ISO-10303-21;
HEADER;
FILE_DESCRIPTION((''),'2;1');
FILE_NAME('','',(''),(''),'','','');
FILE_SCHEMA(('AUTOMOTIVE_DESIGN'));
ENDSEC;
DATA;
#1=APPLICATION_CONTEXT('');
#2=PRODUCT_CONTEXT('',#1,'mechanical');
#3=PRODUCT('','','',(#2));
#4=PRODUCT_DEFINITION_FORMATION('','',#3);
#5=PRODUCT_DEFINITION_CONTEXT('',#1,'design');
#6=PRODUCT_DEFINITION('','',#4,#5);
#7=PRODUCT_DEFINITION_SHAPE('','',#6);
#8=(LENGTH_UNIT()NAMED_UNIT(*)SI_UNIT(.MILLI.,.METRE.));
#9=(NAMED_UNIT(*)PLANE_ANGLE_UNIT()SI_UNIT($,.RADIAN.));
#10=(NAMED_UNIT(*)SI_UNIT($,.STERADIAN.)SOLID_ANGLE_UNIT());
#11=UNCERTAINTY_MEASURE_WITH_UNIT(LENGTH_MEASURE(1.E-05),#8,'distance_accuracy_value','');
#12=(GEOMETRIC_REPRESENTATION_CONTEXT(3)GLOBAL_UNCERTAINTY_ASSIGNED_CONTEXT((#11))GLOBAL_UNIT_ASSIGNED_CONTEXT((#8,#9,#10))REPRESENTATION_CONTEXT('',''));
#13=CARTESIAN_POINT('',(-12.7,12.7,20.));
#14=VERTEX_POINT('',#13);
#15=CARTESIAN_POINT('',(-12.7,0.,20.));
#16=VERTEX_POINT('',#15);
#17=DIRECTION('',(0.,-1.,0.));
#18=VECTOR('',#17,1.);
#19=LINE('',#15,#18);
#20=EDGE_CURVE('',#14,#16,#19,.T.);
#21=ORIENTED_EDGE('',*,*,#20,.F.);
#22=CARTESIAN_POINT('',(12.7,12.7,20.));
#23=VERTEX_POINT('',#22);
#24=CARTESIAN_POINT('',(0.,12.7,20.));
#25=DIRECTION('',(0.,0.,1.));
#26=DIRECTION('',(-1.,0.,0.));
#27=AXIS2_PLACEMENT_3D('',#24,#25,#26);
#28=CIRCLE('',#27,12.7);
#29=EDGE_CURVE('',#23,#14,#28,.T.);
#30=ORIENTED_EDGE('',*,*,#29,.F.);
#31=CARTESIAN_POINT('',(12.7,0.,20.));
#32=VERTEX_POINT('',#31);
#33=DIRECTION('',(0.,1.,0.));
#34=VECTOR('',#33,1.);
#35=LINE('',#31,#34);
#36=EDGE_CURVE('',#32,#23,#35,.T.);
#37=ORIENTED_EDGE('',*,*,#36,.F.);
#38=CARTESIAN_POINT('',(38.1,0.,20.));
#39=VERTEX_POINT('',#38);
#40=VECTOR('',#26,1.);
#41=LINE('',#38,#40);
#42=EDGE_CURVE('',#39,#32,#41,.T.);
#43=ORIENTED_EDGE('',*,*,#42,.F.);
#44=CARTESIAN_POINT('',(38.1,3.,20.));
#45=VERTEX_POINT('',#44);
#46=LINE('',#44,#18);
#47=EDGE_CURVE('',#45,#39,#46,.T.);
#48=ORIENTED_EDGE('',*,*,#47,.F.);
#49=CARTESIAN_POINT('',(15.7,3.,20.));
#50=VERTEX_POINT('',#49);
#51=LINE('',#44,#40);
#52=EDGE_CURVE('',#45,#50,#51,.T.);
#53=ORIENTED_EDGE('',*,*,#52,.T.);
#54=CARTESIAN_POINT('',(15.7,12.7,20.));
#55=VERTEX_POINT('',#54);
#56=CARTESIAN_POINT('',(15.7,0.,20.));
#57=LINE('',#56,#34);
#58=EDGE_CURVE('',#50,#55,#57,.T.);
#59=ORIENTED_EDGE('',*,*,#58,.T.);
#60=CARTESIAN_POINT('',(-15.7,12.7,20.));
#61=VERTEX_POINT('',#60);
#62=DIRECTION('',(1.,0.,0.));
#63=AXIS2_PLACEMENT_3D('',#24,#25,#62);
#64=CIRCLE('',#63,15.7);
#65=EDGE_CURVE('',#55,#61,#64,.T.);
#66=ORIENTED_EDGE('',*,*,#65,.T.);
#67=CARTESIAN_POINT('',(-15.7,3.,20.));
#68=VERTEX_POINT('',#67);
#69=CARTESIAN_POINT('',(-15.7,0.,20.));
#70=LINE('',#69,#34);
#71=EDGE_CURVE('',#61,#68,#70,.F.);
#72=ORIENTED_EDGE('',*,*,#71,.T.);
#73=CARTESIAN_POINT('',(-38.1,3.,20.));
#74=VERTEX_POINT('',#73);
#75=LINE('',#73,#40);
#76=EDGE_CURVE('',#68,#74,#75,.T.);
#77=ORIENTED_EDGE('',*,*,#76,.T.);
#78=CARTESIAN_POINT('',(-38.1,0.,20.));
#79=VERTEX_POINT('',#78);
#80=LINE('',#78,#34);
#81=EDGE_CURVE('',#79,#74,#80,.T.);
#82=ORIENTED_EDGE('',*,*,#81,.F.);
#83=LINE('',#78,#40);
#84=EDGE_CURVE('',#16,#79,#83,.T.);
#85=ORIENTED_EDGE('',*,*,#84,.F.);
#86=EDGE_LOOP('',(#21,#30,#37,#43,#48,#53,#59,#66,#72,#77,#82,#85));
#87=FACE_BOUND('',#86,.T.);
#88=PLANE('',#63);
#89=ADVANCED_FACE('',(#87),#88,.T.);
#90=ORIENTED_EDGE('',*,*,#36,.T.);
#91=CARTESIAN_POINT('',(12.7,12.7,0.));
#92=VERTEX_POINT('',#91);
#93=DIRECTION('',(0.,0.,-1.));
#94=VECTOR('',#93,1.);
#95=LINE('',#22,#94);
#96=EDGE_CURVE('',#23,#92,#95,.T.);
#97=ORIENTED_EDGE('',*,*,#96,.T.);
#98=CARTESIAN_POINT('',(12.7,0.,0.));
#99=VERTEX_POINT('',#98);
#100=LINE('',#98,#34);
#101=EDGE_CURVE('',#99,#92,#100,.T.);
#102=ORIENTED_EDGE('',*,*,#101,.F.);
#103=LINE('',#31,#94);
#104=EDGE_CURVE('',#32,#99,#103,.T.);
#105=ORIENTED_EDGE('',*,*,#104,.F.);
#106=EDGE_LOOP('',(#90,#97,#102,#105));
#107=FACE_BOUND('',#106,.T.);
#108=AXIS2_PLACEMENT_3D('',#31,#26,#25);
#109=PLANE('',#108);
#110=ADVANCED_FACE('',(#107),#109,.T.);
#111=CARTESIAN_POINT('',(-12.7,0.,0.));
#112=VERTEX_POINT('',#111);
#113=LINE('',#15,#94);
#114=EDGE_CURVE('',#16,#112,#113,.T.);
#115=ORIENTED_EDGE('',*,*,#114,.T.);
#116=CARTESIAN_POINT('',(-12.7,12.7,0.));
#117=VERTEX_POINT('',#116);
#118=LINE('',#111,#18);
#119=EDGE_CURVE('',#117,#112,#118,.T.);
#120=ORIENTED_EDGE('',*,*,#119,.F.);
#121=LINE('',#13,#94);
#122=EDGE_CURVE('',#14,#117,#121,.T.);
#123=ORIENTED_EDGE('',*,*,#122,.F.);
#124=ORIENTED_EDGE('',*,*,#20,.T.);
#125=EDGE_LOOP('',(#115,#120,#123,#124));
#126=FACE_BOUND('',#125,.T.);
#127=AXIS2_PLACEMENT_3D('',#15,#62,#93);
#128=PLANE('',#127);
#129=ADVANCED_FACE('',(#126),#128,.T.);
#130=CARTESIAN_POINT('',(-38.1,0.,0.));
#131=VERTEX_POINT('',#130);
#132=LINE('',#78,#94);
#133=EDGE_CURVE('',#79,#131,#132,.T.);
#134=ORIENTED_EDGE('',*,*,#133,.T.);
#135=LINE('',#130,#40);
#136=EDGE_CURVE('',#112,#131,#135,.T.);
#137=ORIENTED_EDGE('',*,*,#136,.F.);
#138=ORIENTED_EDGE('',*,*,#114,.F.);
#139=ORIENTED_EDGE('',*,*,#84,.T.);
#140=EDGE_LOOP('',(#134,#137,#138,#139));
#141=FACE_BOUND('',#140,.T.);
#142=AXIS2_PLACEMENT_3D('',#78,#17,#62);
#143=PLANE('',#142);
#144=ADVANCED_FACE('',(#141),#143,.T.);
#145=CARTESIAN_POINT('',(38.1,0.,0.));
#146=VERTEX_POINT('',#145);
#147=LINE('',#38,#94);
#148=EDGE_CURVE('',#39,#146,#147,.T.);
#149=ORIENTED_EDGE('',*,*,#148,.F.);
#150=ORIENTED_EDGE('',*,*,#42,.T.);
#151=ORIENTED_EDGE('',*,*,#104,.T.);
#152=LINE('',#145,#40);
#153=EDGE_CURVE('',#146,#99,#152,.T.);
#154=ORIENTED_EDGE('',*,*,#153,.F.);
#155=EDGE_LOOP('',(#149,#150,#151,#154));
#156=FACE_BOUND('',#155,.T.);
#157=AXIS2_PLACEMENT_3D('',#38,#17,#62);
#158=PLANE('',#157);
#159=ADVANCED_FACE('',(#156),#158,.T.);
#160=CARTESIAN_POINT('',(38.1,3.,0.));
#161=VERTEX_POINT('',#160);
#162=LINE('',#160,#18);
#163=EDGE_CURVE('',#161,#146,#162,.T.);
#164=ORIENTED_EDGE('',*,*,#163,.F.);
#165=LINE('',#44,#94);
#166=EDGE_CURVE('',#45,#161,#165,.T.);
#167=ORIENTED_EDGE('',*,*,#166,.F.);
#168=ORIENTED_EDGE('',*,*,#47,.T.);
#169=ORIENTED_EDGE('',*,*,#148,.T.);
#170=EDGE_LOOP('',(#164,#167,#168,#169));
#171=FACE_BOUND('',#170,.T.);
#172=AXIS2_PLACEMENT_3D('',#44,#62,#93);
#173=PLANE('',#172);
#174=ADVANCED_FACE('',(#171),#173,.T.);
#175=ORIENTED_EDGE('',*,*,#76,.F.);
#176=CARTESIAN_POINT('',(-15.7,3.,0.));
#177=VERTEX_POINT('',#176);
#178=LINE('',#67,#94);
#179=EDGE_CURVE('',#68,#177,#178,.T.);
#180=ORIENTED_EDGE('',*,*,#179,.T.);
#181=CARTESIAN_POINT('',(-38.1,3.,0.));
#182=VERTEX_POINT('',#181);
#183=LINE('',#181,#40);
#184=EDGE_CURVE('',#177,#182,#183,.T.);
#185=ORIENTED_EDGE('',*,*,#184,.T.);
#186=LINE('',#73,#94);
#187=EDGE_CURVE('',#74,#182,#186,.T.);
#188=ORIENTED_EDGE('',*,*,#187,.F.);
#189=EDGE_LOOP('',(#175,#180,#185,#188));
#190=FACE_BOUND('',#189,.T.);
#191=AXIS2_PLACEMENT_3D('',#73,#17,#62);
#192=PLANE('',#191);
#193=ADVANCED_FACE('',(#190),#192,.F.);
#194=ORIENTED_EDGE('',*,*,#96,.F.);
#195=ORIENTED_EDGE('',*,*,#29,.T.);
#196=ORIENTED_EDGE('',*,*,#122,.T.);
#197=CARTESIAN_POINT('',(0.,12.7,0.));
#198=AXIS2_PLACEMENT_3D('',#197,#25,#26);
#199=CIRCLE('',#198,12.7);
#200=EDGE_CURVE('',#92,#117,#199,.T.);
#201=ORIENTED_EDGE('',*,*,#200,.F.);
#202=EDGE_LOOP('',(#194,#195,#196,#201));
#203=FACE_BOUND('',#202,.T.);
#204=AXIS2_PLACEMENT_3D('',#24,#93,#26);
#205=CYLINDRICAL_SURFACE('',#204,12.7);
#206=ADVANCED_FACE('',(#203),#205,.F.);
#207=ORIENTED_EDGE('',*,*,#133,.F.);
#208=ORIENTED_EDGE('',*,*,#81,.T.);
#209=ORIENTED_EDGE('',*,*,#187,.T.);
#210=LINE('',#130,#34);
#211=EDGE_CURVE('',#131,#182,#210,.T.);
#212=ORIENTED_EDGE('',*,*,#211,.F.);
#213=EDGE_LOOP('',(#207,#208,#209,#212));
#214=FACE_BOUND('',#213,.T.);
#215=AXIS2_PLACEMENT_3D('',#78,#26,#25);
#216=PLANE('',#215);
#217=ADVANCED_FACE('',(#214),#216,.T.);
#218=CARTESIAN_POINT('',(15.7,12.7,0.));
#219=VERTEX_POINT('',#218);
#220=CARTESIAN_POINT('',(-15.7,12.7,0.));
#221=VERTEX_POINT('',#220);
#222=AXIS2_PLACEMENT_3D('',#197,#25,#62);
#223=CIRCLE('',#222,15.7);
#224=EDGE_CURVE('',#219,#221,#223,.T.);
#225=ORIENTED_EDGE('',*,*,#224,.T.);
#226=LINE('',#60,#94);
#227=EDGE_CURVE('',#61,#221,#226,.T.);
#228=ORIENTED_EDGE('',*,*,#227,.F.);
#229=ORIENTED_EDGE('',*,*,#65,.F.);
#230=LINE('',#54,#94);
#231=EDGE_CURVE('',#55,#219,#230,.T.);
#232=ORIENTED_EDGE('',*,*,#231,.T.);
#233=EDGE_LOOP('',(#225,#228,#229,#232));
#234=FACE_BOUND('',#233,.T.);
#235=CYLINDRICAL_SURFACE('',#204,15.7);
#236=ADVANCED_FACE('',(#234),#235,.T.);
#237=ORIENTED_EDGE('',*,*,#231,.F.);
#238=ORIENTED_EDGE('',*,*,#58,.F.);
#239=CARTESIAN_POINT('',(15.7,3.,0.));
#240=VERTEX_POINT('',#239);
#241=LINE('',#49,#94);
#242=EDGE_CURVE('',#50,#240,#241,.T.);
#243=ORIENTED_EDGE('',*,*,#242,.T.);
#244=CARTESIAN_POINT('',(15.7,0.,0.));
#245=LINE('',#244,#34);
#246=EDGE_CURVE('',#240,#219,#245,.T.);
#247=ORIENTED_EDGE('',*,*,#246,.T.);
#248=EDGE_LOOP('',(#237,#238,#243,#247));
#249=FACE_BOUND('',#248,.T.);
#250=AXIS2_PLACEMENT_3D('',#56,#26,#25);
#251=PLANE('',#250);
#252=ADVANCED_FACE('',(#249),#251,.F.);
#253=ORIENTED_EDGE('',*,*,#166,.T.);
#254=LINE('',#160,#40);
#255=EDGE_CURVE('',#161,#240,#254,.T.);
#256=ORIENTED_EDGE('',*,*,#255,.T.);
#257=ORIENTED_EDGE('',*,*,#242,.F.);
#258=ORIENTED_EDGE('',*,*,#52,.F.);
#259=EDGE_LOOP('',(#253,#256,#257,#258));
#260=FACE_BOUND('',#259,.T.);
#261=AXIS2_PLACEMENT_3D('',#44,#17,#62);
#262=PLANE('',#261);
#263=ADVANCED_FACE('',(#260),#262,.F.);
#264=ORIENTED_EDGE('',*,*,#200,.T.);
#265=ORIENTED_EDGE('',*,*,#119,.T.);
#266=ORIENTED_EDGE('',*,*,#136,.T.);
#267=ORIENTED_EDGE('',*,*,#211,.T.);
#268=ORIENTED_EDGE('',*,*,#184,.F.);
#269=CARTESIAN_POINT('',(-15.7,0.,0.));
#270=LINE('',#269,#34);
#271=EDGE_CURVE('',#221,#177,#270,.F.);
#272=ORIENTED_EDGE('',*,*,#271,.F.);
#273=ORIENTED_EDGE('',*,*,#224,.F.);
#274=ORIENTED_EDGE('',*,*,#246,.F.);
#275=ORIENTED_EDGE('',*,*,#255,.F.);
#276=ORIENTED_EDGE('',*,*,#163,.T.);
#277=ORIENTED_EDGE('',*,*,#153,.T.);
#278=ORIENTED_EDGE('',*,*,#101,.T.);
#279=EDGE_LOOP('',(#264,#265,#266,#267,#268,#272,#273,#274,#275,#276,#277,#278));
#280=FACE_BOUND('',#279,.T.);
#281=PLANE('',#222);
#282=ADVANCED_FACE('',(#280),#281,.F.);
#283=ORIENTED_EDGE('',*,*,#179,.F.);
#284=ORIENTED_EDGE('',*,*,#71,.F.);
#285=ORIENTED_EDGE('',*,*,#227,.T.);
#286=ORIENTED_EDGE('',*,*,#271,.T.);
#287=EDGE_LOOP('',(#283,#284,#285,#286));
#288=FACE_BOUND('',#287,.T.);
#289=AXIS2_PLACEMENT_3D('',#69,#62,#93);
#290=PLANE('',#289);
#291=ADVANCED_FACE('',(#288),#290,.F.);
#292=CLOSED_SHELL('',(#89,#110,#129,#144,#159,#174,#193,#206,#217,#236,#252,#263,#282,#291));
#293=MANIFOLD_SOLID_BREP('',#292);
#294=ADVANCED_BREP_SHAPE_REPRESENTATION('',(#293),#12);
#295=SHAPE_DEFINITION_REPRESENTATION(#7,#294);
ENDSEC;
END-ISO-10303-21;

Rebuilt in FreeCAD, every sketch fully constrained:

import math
import FreeCAD as App
import Part
import Sketcher

V = App.Vector
Q = App.Units.Quantity

doc = App.newDocument("Part")
body = doc.addObject("PartDesign::Body", "Body")

# Sketch on XY plane
sketch1 = body.newObject("Sketcher::SketchObject", "Sketch")
sketch1.AttachmentSupport = (doc.getObject("XY_Plane"), [""])
sketch1.MapMode = "FlatFace"
sketch1.addGeometry(Part.LineSegment(V(-38.1, 0, 0), V(-12.7, 0, 0)), False)
sketch1.addGeometry(Part.LineSegment(V(-12.7, 0, 0), V(-12.7, 12.7, 0)), False)
sketch1.addGeometry(Part.ArcOfCircle(Part.Circle(V(0, 12.7, 0), V(0, 0, 1), 12.7), math.radians(0), math.radians(180)), False)
sketch1.addGeometry(Part.LineSegment(V(12.7, 12.7, 0), V(12.7, 0, 0)), False)
sketch1.addGeometry(Part.LineSegment(V(12.7, 0, 0), V(38.1, 0, 0)), False)
sketch1.addGeometry(Part.LineSegment(V(38.1, 0, 0), V(38.1, 3, 0)), False)
sketch1.addGeometry(Part.LineSegment(V(38.1, 3, 0), V(15.7, 3, 0)), False)
sketch1.addGeometry(Part.LineSegment(V(15.7, 3, 0), V(15.7, 12.7, 0)), False)
sketch1.addGeometry(Part.ArcOfCircle(Part.Circle(V(0, 12.7, 0), V(0, 0, 1), 15.7), math.radians(0), math.radians(180)), False)
sketch1.addGeometry(Part.LineSegment(V(-15.7, 12.7, 0), V(-15.7, 3, 0)), False)
sketch1.addGeometry(Part.LineSegment(V(-15.7, 3, 0), V(-38.1, 3, 0)), False)
sketch1.addGeometry(Part.LineSegment(V(-38.1, 3, 0), V(-38.1, 0, 0)), False)
sketch1.addConstraint(Sketcher.Constraint("Coincident", 0, 2, 1, 1))
sketch1.addConstraint(Sketcher.Constraint("Tangent", 1, 2, 2, 2))
sketch1.addConstraint(Sketcher.Constraint("Tangent", 2, 1, 3, 1))
sketch1.addConstraint(Sketcher.Constraint("Coincident", 3, 2, 4, 1))
sketch1.addConstraint(Sketcher.Constraint("Coincident", 4, 2, 5, 1))
sketch1.addConstraint(Sketcher.Constraint("Coincident", 5, 2, 6, 1))
sketch1.addConstraint(Sketcher.Constraint("Coincident", 6, 2, 7, 1))
sketch1.addConstraint(Sketcher.Constraint("Tangent", 7, 2, 8, 1))
sketch1.addConstraint(Sketcher.Constraint("Tangent", 8, 2, 9, 1))
sketch1.addConstraint(Sketcher.Constraint("Coincident", 9, 2, 10, 1))
sketch1.addConstraint(Sketcher.Constraint("Coincident", 10, 2, 11, 1))
sketch1.addConstraint(Sketcher.Constraint("Coincident", 11, 2, 0, 1))
sketch1.addConstraint(Sketcher.Constraint("Horizontal", 0))
sketch1.addConstraint(Sketcher.Constraint("Vertical", 1))
sketch1.addConstraint(Sketcher.Constraint("Vertical", 3))
sketch1.addConstraint(Sketcher.Constraint("Horizontal", 4))
sketch1.addConstraint(Sketcher.Constraint("Vertical", 5))
sketch1.addConstraint(Sketcher.Constraint("Horizontal", 6))
sketch1.addConstraint(Sketcher.Constraint("Vertical", 7))
sketch1.addConstraint(Sketcher.Constraint("Vertical", 9))
sketch1.addConstraint(Sketcher.Constraint("Horizontal", 10))
sketch1.addConstraint(Sketcher.Constraint("Vertical", 11))
sketch1.addConstraint(Sketcher.Constraint("Coincident", 8, 3, 2, 3))
sketch1.addConstraint(Sketcher.Constraint("Symmetric", 0, 2, 3, 2, -1, 1))
sketch1.addConstraint(Sketcher.Constraint("Symmetric", 5, 2, 10, 2, -2))
sketch1.addConstraint(Sketcher.Constraint("PointOnObject", 0, 2, -1))
sketch1.addConstraint(Sketcher.Constraint("Radius", 2, Q("12.7 mm")))
sketch1.addConstraint(Sketcher.Constraint("Radius", 8, Q("15.7 mm")))
sketch1.addConstraint(Sketcher.Constraint("DistanceY", 5, 1, 5, 2, Q("3 mm")))
sketch1.addConstraint(Sketcher.Constraint("DistanceX", 0, 1, 0, 2, Q("25.4 mm")))
sketch1.addConstraint(Sketcher.Constraint("DistanceY", 1, 1, 1, 2, Q("12.7 mm")))
pad1 = body.newObject("PartDesign::Pad", "Pad")
pad1.Profile = sketch1
pad1.Length = 20

doc.recompute()
